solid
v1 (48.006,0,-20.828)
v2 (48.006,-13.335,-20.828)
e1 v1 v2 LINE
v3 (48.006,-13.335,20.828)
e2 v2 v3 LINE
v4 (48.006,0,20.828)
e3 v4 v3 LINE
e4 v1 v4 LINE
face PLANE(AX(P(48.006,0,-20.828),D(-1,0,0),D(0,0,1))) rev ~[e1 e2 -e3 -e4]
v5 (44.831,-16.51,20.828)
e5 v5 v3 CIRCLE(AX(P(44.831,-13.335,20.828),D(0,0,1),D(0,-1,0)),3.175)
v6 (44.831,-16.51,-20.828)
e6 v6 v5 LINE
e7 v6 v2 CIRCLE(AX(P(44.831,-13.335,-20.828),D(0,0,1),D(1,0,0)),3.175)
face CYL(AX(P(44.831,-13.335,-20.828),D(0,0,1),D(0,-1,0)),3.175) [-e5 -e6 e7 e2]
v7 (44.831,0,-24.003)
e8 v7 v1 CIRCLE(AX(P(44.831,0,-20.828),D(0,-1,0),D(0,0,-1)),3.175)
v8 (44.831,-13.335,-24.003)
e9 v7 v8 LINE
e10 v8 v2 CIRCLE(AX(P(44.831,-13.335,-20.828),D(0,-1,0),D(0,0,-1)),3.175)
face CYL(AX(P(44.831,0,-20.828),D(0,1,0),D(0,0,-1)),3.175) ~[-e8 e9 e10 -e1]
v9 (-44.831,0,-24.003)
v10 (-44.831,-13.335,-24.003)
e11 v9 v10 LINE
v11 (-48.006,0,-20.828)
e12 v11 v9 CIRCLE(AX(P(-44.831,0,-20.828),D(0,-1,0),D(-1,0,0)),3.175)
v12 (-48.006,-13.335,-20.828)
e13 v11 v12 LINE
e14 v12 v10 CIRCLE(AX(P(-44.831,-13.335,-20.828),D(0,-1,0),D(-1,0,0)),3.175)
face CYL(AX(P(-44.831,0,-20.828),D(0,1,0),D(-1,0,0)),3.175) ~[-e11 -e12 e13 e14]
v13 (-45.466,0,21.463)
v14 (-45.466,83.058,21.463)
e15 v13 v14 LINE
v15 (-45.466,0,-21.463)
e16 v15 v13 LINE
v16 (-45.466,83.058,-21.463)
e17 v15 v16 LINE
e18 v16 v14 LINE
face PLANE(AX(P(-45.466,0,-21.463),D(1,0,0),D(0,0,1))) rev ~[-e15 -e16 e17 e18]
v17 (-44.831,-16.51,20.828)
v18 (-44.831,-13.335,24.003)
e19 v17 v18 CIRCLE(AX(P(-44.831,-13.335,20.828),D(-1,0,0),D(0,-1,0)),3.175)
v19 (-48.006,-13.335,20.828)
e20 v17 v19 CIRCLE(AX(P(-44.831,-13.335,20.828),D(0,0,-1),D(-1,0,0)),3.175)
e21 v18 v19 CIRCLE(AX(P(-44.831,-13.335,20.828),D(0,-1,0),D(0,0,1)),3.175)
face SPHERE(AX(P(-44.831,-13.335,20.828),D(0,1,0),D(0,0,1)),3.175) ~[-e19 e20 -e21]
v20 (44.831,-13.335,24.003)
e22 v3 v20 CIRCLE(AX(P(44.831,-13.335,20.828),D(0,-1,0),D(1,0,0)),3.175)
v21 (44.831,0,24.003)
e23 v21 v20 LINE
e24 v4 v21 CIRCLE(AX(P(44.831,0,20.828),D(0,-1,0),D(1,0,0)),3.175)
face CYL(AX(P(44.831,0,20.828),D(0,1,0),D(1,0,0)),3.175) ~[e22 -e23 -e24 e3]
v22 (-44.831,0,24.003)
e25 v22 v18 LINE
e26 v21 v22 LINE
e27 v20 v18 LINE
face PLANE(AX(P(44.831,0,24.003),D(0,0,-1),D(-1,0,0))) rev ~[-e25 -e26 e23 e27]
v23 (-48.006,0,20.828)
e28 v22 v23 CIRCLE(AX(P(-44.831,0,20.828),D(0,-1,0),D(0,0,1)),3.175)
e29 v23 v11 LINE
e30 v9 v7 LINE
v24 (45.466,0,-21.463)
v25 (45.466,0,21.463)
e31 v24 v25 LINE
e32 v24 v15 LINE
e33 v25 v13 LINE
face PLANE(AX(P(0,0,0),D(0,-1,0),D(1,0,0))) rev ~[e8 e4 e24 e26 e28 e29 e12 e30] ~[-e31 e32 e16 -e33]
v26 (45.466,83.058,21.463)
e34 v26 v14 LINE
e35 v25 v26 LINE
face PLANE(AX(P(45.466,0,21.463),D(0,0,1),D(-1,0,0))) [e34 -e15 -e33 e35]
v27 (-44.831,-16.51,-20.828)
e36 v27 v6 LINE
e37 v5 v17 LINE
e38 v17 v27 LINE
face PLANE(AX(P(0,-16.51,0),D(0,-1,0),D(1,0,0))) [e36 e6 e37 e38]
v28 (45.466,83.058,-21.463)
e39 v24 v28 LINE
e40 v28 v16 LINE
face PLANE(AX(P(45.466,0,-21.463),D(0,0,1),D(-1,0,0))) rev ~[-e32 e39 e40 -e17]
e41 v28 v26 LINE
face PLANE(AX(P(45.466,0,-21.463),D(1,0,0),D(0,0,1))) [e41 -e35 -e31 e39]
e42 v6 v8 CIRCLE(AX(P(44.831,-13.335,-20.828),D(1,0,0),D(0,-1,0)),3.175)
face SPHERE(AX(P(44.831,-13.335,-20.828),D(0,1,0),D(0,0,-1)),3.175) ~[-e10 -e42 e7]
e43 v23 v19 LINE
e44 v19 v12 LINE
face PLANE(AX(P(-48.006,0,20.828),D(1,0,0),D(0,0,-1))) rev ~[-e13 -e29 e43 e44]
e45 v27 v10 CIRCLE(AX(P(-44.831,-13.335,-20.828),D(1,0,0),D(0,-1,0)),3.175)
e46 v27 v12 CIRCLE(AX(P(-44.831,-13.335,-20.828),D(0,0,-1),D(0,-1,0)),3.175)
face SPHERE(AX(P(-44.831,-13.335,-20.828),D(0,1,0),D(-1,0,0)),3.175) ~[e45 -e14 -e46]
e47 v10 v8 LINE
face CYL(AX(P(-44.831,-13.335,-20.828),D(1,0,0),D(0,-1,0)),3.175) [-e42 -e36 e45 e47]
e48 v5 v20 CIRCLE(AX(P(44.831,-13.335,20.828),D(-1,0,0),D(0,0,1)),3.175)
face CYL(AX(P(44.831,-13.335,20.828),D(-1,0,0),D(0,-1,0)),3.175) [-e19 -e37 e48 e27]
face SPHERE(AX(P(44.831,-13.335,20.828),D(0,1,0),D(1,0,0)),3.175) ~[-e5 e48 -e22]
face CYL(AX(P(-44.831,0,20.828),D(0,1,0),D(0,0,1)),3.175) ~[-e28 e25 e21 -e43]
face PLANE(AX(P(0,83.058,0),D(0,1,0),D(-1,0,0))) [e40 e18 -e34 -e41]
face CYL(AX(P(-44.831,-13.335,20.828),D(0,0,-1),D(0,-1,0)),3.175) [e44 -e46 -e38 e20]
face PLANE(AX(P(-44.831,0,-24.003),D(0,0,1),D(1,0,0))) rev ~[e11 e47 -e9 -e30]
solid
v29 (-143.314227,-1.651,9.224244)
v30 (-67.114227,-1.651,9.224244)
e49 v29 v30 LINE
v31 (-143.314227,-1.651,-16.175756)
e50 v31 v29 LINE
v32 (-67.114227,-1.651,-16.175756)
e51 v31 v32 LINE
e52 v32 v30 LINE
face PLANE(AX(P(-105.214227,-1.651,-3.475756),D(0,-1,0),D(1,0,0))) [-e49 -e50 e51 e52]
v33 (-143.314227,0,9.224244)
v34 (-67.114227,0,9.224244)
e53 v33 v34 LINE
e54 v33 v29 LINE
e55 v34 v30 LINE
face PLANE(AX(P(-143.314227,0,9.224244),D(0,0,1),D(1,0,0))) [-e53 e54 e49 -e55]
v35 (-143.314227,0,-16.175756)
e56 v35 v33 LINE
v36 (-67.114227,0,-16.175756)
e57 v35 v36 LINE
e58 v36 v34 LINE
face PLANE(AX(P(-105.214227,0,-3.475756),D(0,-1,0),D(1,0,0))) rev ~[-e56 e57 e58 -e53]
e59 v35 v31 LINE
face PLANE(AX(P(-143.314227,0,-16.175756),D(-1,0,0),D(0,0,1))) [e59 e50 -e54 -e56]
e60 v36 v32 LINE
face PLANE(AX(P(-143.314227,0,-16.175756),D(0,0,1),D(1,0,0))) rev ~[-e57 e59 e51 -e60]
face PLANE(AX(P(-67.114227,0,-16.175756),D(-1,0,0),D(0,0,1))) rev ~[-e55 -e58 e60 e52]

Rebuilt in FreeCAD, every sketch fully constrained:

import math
import FreeCAD as App
import Part
import Sketcher
from FreeCAD import Vector
Q = App.Units.Quantity


def edges_at(feature, points):
    """Names of the edges that pass closest to the given points."""
    edges = feature.Shape.Edges
    near = lambda p: min(range(len(edges)), key=lambda i: edges[i].distToShape(Part.Vertex(*p))[0])
    return sorted({f"Edge{near(p) + 1}" for p in points})

doc = App.newDocument("Part")
body = doc.addObject("PartDesign::Body", "Body")

sketch1 = body.newObject("Sketcher::SketchObject", "Sketch")
sketch1.AttachmentSupport = (doc.getObject("XZ_Plane"), [""])
sketch1.MapMode = "FlatFace"
sketch1.addGeometry([
    Part.LineSegment(Vector(44.831, 24.003, 0), Vector(-44.831, 24.003, 0)),
    Part.ArcOfCircle(Part.Circle(Vector(-44.831, 20.828, 0), Vector(0, 0, 1), 3.175), math.radians(90), math.radians(180)),
    Part.LineSegment(Vector(-48.006, 20.828, 0), Vector(-48.006, -20.828, 0)),
    Part.ArcOfCircle(Part.Circle(Vector(-44.831, -20.828, 0), Vector(0, 0, 1), 3.175), math.radians(180), math.radians(270)),
    Part.LineSegment(Vector(-44.831, -24.003, 0), Vector(44.831, -24.003, 0)),
    Part.ArcOfCircle(Part.Circle(Vector(44.831, -20.828, 0), Vector(0, 0, 1), 3.175), math.radians(-90), math.radians(0)),
    Part.LineSegment(Vector(48.006, -20.828, 0), Vector(48.006, 20.828, 0)),
    Part.ArcOfCircle(Part.Circle(Vector(44.831, 20.828, 0), Vector(0, 0, 1), 3.175), math.radians(0), math.radians(90)),
], False)
sketch1.addConstraint([
    Sketcher.Constraint("Tangent", 0, 2, 1, 1),
    Sketcher.Constraint("Tangent", 1, 2, 2, 1),
    Sketcher.Constraint("Tangent", 2, 2, 3, 1),
    Sketcher.Constraint("Tangent", 3, 2, 4, 1),
    Sketcher.Constraint("Tangent", 4, 2, 5, 1),
    Sketcher.Constraint("Tangent", 5, 2, 6, 1),
    Sketcher.Constraint("Tangent", 6, 2, 7, 1),
    Sketcher.Constraint("Tangent", 7, 2, 0, 1),
    Sketcher.Constraint("Horizontal", 0),
    Sketcher.Constraint("Vertical", 2),
    Sketcher.Constraint("Horizontal", 4),
    Sketcher.Constraint("Vertical", 6),
    Sketcher.Constraint("Equal", 1, 3),
    Sketcher.Constraint("Equal", 3, 5),
    Sketcher.Constraint("Equal", 5, 7),
    Sketcher.Constraint("Symmetric", 1, 3, 5, 3, -1, 1),
    Sketcher.Constraint("Radius", 1, Q("0.125 in")),
    Sketcher.Constraint("DistanceX", 0, 2, 0, 1, Q("3.53 in")),
    Sketcher.Constraint("DistanceY", 2, 2, 2, 1, Q("1.64 in")),
])
pad1 = body.newObject("PartDesign::Pad", "Pad")
pad1.Profile = sketch1
pad1.Length = Q("0.65 in")

sketch2 = body.newObject("Sketcher::SketchObject", "Sketch001")
sketch2.AttachmentSupport = (doc.getObject("XZ_Plane"), [""])
sketch2.MapMode = "FlatFace"
sketch2.addGeometry([
    Part.LineSegment(Vector(45.466, 21.463, 0), Vector(45.466, -21.463, 0)),
    Part.LineSegment(Vector(45.466, -21.463, 0), Vector(-45.466, -21.463, 0)),
    Part.LineSegment(Vector(-45.466, -21.463, 0), Vector(-45.466, 21.463, 0)),
    Part.LineSegment(Vector(-45.466, 21.463, 0), Vector(45.466, 21.463, 0)),
], False)
sketch2.addConstraint([
    Sketcher.Constraint("Coincident", 0, 2, 1, 1),
    Sketcher.Constraint("Coincident", 1, 2, 2, 1),
    Sketcher.Constraint("Coincident", 2, 2, 3, 1),
    Sketcher.Constraint("Coincident", 3, 2, 0, 1),
    Sketcher.Constraint("Vertical", 0),
    Sketcher.Constraint("Horizontal", 1),
    Sketcher.Constraint("Vertical", 2),
    Sketcher.Constraint("Horizontal", 3),
    Sketcher.Constraint("Symmetric", 0, 2, 2, 2, -1, 1),
    Sketcher.Constraint("DistanceX", 1, 2, 1, 1, Q("3.58 in")),
    Sketcher.Constraint("DistanceY", 0, 2, 0, 1, Q("1.69 in")),
])
pad2 = body.newObject("PartDesign::Pad", "Pad001")
pad2.Profile = sketch2
pad2.Length = Q("3.27 in")
pad2.Reversed = True
doc.recompute()

fillet = body.newObject("PartDesign::Fillet", "Fillet")
fillet.Base = (pad2, edges_at(pad2, [(0, -16.51, -24.003)]))
fillet.Radius = Q("0.125 in")
body2 = doc.addObject("PartDesign::Body", "Body001")

sketch3 = body2.newObject("Sketcher::SketchObject", "Sketch002")
sketch3.AttachmentSupport = (doc.getObject("XZ_Plane001"), [""])
sketch3.MapMode = "FlatFace"
sketch3.addGeometry([
    Part.LineSegment(Vector(-143.314227, 9.224244, 0), Vector(-143.314227, -16.175756, 0)),
    Part.LineSegment(Vector(-143.314227, -16.175756, 0), Vector(-67.114227, -16.175756, 0)),
    Part.LineSegment(Vector(-67.114227, -16.175756, 0), Vector(-67.114227, 9.224244, 0)),
    Part.LineSegment(Vector(-67.114227, 9.224244, 0), Vector(-143.314227, 9.224244, 0)),
], False)
sketch3.addConstraint([
    Sketcher.Constraint("Coincident", 0, 2, 1, 1),
    Sketcher.Constraint("Coincident", 1, 2, 2, 1),
    Sketcher.Constraint("Coincident", 2, 2, 3, 1),
    Sketcher.Constraint("Coincident", 3, 2, 0, 1),
    Sketcher.Constraint("Vertical", 0),
    Sketcher.Constraint("Horizontal", 1),
    Sketcher.Constraint("Vertical", 2),
    Sketcher.Constraint("Horizontal", 3),
    Sketcher.Constraint("DistanceX", 1, 1, 1, 2, Q("3 in")),
    Sketcher.Constraint("DistanceY", 0, 2, 0, 1, Q("1 in")),
    Sketcher.Constraint("DistanceX", 0, 2, -1, 1, 143.314227),
    Sketcher.Constraint("DistanceY", 0, 2, -1, 1, 16.175756),
])
pad3 = body2.newObject("PartDesign::Pad", "Pad002")
pad3.Profile = sketch3
pad3.Length = Q("0.065 in")

doc.recompute()
